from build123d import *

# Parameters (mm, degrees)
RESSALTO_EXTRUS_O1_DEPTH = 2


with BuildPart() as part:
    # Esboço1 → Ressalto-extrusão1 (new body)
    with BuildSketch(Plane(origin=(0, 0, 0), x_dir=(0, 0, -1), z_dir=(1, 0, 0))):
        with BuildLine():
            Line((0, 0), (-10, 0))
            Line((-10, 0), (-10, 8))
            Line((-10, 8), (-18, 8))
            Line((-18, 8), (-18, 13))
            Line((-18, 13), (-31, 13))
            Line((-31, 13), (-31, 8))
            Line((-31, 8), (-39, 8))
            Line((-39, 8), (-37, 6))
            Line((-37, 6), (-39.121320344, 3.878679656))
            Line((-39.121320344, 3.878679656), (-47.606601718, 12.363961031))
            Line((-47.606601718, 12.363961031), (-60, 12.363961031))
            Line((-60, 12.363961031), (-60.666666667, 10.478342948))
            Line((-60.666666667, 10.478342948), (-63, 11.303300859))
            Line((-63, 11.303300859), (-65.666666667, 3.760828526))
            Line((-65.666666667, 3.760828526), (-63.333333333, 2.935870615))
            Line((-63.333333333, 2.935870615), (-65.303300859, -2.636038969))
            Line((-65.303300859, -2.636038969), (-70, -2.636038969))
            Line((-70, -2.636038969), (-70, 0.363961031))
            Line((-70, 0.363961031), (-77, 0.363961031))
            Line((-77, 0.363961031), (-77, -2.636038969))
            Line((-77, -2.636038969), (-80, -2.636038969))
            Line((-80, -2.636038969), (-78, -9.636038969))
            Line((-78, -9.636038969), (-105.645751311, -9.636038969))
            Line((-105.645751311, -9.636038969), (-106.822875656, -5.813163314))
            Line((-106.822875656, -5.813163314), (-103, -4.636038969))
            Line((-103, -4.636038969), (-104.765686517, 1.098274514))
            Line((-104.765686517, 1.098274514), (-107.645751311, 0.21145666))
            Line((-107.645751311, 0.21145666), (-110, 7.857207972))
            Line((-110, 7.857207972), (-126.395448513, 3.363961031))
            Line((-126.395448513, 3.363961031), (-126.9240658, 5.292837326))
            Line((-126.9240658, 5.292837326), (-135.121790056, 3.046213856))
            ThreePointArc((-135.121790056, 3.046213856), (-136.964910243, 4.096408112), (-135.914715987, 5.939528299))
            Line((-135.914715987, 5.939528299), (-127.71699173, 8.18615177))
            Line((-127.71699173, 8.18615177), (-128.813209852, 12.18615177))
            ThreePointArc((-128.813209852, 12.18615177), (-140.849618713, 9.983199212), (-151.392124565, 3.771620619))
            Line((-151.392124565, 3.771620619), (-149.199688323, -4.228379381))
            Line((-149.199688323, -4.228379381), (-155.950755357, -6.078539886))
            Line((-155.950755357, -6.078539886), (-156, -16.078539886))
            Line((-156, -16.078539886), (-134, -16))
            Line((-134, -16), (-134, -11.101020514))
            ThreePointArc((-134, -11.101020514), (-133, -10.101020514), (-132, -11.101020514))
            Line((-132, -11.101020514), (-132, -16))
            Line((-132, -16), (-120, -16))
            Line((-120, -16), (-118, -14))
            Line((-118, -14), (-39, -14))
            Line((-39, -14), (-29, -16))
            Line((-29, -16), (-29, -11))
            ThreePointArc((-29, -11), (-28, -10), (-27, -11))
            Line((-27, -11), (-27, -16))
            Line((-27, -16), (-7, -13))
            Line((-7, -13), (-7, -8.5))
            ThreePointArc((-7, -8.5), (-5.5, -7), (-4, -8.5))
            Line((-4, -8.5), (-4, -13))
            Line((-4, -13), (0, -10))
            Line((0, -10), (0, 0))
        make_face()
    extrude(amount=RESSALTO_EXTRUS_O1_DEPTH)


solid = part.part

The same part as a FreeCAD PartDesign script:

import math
import FreeCAD as App
import Part
import Sketcher
from FreeCAD import Vector
Q = App.Units.Quantity

doc = App.newDocument("Part")
body = doc.addObject("PartDesign::Body", "Body")

sketch1 = doc.addObject("Sketcher::SketchObject", "Sketch")
body.addObject(sketch1)
sketch1.AttachmentSupport = (doc.YZ_Plane, [""])
sketch1.MapMode = "FlatFace"
sketch1.addGeometry(Part.LineSegment(Vector(0, 0, 0), Vector(0, 10, 0)), False)
sketch1.addGeometry(Part.LineSegment(Vector(0, 10, 0), Vector(8, 10, 0)), False)
sketch1.addGeometry(Part.LineSegment(Vector(8, 10, 0), Vector(8, 18, 0)), False)
sketch1.addGeometry(Part.LineSegment(Vector(8, 18, 0), Vector(13, 18, 0)), False)
sketch1.addGeometry(Part.LineSegment(Vector(13, 18, 0), Vector(13, 31, 0)), False)
sketch1.addGeometry(Part.LineSegment(Vector(13, 31, 0), Vector(8, 31, 0)), False)
sketch1.addGeometry(Part.LineSegment(Vector(8, 31, 0), Vector(8, 39, 0)), False)
sketch1.addGeometry(Part.LineSegment(Vector(8, 39, 0), Vector(6, 37, 0)), False)
sketch1.addGeometry(Part.LineSegment(Vector(6, 37, 0), Vector(3.9, 39.1, 0)), False)
sketch1.addGeometry(Part.LineSegment(Vector(3.9, 39.1, 0), Vector(12.4, 47.6, 0)), False)
sketch1.addGeometry(Part.LineSegment(Vector(12.4, 47.6, 0), Vector(12.4, 60, 0)), False)
sketch1.addGeometry(Part.LineSegment(Vector(12.4, 60, 0), Vector(10.5, 60.7, 0)), False)
sketch1.addGeometry(Part.LineSegment(Vector(10.5, 60.7, 0), Vector(11.3, 63, 0)), False)
sketch1.addGeometry(Part.LineSegment(Vector(11.3, 63, 0), Vector(3.8, 65.7, 0)), False)
sketch1.addGeometry(Part.LineSegment(Vector(3.8, 65.7, 0), Vector(2.9, 63.3, 0)), False)
sketch1.addGeometry(Part.LineSegment(Vector(2.9, 63.3, 0), Vector(-2.6, 65.3, 0)), False)
sketch1.addGeometry(Part.LineSegment(Vector(-2.6, 65.3, 0), Vector(-2.6, 70, 0)), False)
sketch1.addGeometry(Part.LineSegment(Vector(-2.6, 70, 0), Vector(0.4, 70, 0)), False)
sketch1.addGeometry(Part.LineSegment(Vector(0.4, 70, 0), Vector(0.4, 77, 0)), False)
sketch1.addGeometry(Part.LineSegment(Vector(0.4, 77, 0), Vector(-2.6, 77, 0)), False)
sketch1.addGeometry(Part.LineSegment(Vector(-2.6, 77, 0), Vector(-2.6, 80, 0)), False)
sketch1.addGeometry(Part.LineSegment(Vector(-2.6, 80, 0), Vector(-9.6, 78, 0)), False)
sketch1.addGeometry(Part.LineSegment(Vector(-9.6, 78, 0), Vector(-9.6, 105.6, 0)), False)
sketch1.addGeometry(Part.LineSegment(Vector(-9.6, 105.6, 0), Vector(-5.8, 106.8, 0)), False)
sketch1.addGeometry(Part.LineSegment(Vector(-5.8, 106.8, 0), Vector(-4.6, 103, 0)), False)
sketch1.addGeometry(Part.LineSegment(Vector(-4.6, 103, 0), Vector(1.1, 104.8, 0)), False)
sketch1.addGeometry(Part.LineSegment(Vector(1.1, 104.8, 0), Vector(0.2, 107.6, 0)), False)
sketch1.addGeometry(Part.LineSegment(Vector(0.2, 107.6, 0), Vector(7.9, 110, 0)), False)
sketch1.addGeometry(Part.LineSegment(Vector(7.9, 110, 0), Vector(3.4, 126.4, 0)), False)
sketch1.addGeometry(Part.LineSegment(Vector(3.4, 126.4, 0), Vector(5.3, 126.9, 0)), False)
sketch1.addGeometry(Part.LineSegment(Vector(5.3, 126.9, 0), Vector(3, 135.1, 0)), False)
sketch1.addGeometry(Part.ArcOfCircle(Part.Circle(Vector(4.5, 135.5, 0), Vector(0, 0, 1), 1.5), math.radians(15), math.radians(195)), False)
sketch1.addGeometry(Part.LineSegment(Vector(5.9, 135.9, 0), Vector(8.2, 127.7, 0)), False)
sketch1.addGeometry(Part.LineSegment(Vector(8.2, 127.7, 0), Vector(12.2, 128.8, 0)), False)
sketch1.addGeometry(Part.ArcOfCircle(Part.Circle(Vector(-22.8, 128.6, 0), Vector(0, 0, 1), 35), math.radians(0), math.radians(41)), False)
sketch1.addGeometry(Part.LineSegment(Vector(3.8, 151.4, 0), Vector(-4.2, 149.2, 0)), False)
sketch1.addGeometry(Part.LineSegment(Vector(-4.2, 149.2, 0), Vector(-6.1, 156, 0)), False)
sketch1.addGeometry(Part.LineSegment(Vector(-6.1, 156, 0), Vector(-16.1, 156, 0)), False)
sketch1.addGeometry(Part.LineSegment(Vector(-16.1, 156, 0), Vector(-16, 134, 0)), False)
sketch1.addGeometry(Part.LineSegment(Vector(-16, 134, 0), Vector(-11.1, 134, 0)), False)
sketch1.addGeometry(Part.ArcOfCircle(Part.Circle(Vector(-11.1, 133, 0), Vector(0, 0, 1), 1), math.radians(-90), math.radians(90)), False)
sketch1.addGeometry(Part.LineSegment(Vector(-11.1, 132, 0), Vector(-16, 132, 0)), False)
sketch1.addGeometry(Part.LineSegment(Vector(-16, 132, 0), Vector(-16, 120, 0)), False)
sketch1.addGeometry(Part.LineSegment(Vector(-16, 120, 0), Vector(-14, 118, 0)), False)
sketch1.addGeometry(Part.LineSegment(Vector(-14, 118, 0), Vector(-14, 39, 0)), False)
sketch1.addGeometry(Part.LineSegment(Vector(-14, 39, 0), Vector(-16, 29, 0)), False)
sketch1.addGeometry(Part.LineSegment(Vector(-16, 29, 0), Vector(-11, 29, 0)), False)
sketch1.addGeometry(Part.ArcOfCircle(Part.Circle(Vector(-11, 28, 0), Vector(0, 0, 1), 1), math.radians(-90), math.radians(90)), False)
sketch1.addGeometry(Part.LineSegment(Vector(-11, 27, 0), Vector(-16, 27, 0)), False)
sketch1.addGeometry(Part.LineSegment(Vector(-16, 27, 0), Vector(-13, 7, 0)), False)
sketch1.addGeometry(Part.LineSegment(Vector(-13, 7, 0), Vector(-8.5, 7, 0)), False)
sketch1.addGeometry(Part.ArcOfCircle(Part.Circle(Vector(-8.5, 5.5, 0), Vector(0, 0, 1), 1.5), math.radians(-90), math.radians(90)), False)
sketch1.addGeometry(Part.LineSegment(Vector(-8.5, 4, 0), Vector(-13, 4, 0)), False)
sketch1.addGeometry(Part.LineSegment(Vector(-13, 4, 0), Vector(-10, 0, 0)), False)
sketch1.addGeometry(Part.LineSegment(Vector(-10, 0, 0), Vector(0, 0, 0)), False)
sketch1.addConstraint(Sketcher.Constraint("Coincident", 0, 2, 1, 1))
sketch1.addConstraint(Sketcher.Constraint("Coincident", 1, 2, 2, 1))
sketch1.addConstraint(Sketcher.Constraint("Coincident", 2, 2, 3, 1))
sketch1.addConstraint(Sketcher.Constraint("Coincident", 3, 2, 4, 1))
sketch1.addConstraint(Sketcher.Constraint("Coincident", 4, 2, 5, 1))
sketch1.addConstraint(Sketcher.Constraint("Coincident", 5, 2, 6, 1))
sketch1.addConstraint(Sketcher.Constraint("Coincident", 6, 2, 7, 1))
sketch1.addConstraint(Sketcher.Constraint("Coincident", 7, 2, 8, 1))
sketch1.addConstraint(Sketcher.Constraint("Coincident", 8, 2, 9, 1))
sketch1.addConstraint(Sketcher.Constraint("Coincident", 9, 2, 10, 1))
sketch1.addConstraint(Sketcher.Constraint("Coincident", 10, 2, 11, 1))
sketch1.addConstraint(Sketcher.Constraint("Coincident", 11, 2, 12, 1))
sketch1.addConstraint(Sketcher.Constraint("Coincident", 12, 2, 13, 1))
sketch1.addConstraint(Sketcher.Constraint("Coincident", 13, 2, 14, 1))
sketch1.addConstraint(Sketcher.Constraint("Coincident", 14, 2, 15, 1))
sketch1.addConstraint(Sketcher.Constraint("Coincident", 15, 2, 16, 1))
sketch1.addConstraint(Sketcher.Constraint("Coincident", 16, 2, 17, 1))
sketch1.addConstraint(Sketcher.Constraint("Coincident", 17, 2, 18, 1))
sketch1.addConstraint(Sketcher.Constraint("Coincident", 18, 2, 19, 1))
sketch1.addConstraint(Sketcher.Constraint("Coincident", 19, 2, 20, 1))
sketch1.addConstraint(Sketcher.Constraint("Coincident", 20, 2, 21, 1))
sketch1.addConstraint(Sketcher.Constraint("Coincident", 21, 2, 22, 1))
sketch1.addConstraint(Sketcher.Constraint("Coincident", 22, 2, 23, 1))
sketch1.addConstraint(Sketcher.Constraint("Coincident", 23, 2, 24, 1))
sketch1.addConstraint(Sketcher.Constraint("Coincident", 24, 2, 25, 1))
sketch1.addConstraint(Sketcher.Constraint("Coincident", 25, 2, 26, 1))
sketch1.addConstraint(Sketcher.Constraint("Coincident", 26, 2, 27, 1))
sketch1.addConstraint(Sketcher.Constraint("Coincident", 27, 2, 28, 1))
sketch1.addConstraint(Sketcher.Constraint("Coincident", 28, 2, 29, 1))
sketch1.addConstraint(Sketcher.Constraint("Coincident", 29, 2, 30, 1))
sketch1.addConstraint(Sketcher.Constraint("Tangent", 30, 2, 31, 2))
sketch1.addConstraint(Sketcher.Constraint("Tangent", 31, 1, 32, 1))
sketch1.addConstraint(Sketcher.Constraint("Coincident", 32, 2, 33, 1))
sketch1.addConstraint(Sketcher.Constraint("Coincident", 33, 2, 34, 1))
sketch1.addConstraint(Sketcher.Constraint("Coincident", 34, 2, 35, 1))
sketch1.addConstraint(Sketcher.Constraint("Coincident", 35, 2, 36, 1))
sketch1.addConstraint(Sketcher.Constraint("Coincident", 36, 2, 37, 1))
sketch1.addConstraint(Sketcher.Constraint("Coincident", 37, 2, 38, 1))
sketch1.addConstraint(Sketcher.Constraint("Coincident", 38, 2, 39, 1))
sketch1.addConstraint(Sketcher.Constraint("Tangent", 39, 2, 40, 2))
sketch1.addConstraint(Sketcher.Constraint("Tangent", 40, 1, 41, 1))
sketch1.addConstraint(Sketcher.Constraint("Coincident", 41, 2, 42, 1))
sketch1.addConstraint(Sketcher.Constraint("Coincident", 42, 2, 43, 1))
sketch1.addConstraint(Sketcher.Constraint("Coincident", 43, 2, 44, 1))
sketch1.addConstraint(Sketcher.Constraint("Coincident", 44, 2, 45, 1))
sketch1.addConstraint(Sketcher.Constraint("Coincident", 45, 2, 46, 1))
sketch1.addConstraint(Sketcher.Constraint("Tangent", 46, 2, 47, 2))
sketch1.addConstraint(Sketcher.Constraint("Tangent", 47, 1, 48, 1))
sketch1.addConstraint(Sketcher.Constraint("Coincident", 48, 2, 49, 1))
sketch1.addConstraint(Sketcher.Constraint("Coincident", 49, 2, 50, 1))
sketch1.addConstraint(Sketcher.Constraint("Tangent", 50, 2, 51, 2))
sketch1.addConstraint(Sketcher.Constraint("Tangent", 51, 1, 52, 1))
sketch1.addConstraint(Sketcher.Constraint("Coincident", 52, 2, 53, 1))
sketch1.addConstraint(Sketcher.Constraint("Coincident", 53, 2, 54, 1))
sketch1.addConstraint(Sketcher.Constraint("Coincident", 54, 2, 0, 1))
sketch1.addConstraint(Sketcher.Constraint("Vertical", 0))
sketch1.addConstraint(Sketcher.Constraint("Horizontal", 1))
sketch1.addConstraint(Sketcher.Constraint("Vertical", 2))
sketch1.addConstraint(Sketcher.Constraint("Horizontal", 3))
sketch1.addConstraint(Sketcher.Constraint("Vertical", 4))
sketch1.addConstraint(Sketcher.Constraint("Horizontal", 5))
sketch1.addConstraint(Sketcher.Constraint("Vertical", 6))
sketch1.addConstraint(Sketcher.Constraint("Vertical", 10))
sketch1.addConstraint(Sketcher.Constraint("Vertical", 16))
sketch1.addConstraint(Sketcher.Constraint("Horizontal", 17))
sketch1.addConstraint(Sketcher.Constraint("Vertical", 18))
sketch1.addConstraint(Sketcher.Constraint("Horizontal", 19))
sketch1.addConstraint(Sketcher.Constraint("Vertical", 20))
sketch1.addConstraint(Sketcher.Constraint("Vertical", 22))
sketch1.addConstraint(Sketcher.Constraint("Horizontal", 39))
sketch1.addConstraint(Sketcher.Constraint("Horizontal", 41))
sketch1.addConstraint(Sketcher.Constraint("Vertical", 42))
sketch1.addConstraint(Sketcher.Constraint("Vertical", 44))
sketch1.addConstraint(Sketcher.Constraint("Horizontal", 46))
sketch1.addConstraint(Sketcher.Constraint("Horizontal", 48))
sketch1.addConstraint(Sketcher.Constraint("Horizontal", 50))
sketch1.addConstraint(Sketcher.Constraint("Horizontal", 52))
sketch1.addConstraint(Sketcher.Constraint("Horizontal", 54))
sketch1.addConstraint(Sketcher.Constraint("Coincident", 54, 2, -1, 1))
sketch1.addConstraint(Sketcher.Constraint("Equal", 40, 47))
sketch1.addConstraint(Sketcher.Constraint("Equal", 31, 51))
sketch1.addConstraint(Sketcher.Constraint("Perpendicular", 7, 8))
sketch1.addConstraint(Sketcher.Constraint("Perpendicular", 8, 9))
sketch1.addConstraint(Sketcher.Constraint("Perpendicular", 11, 12))
sketch1.addConstraint(Sketcher.Constraint("Perpendicular", 12, 13))
sketch1.addConstraint(Sketcher.Constraint("Perpendicular", 13, 14))
sketch1.addConstraint(Sketcher.Constraint("Perpendicular", 14, 15))
sketch1.addConstraint(Sketcher.Constraint("Perpendicular", 23, 24))
sketch1.addConstraint(Sketcher.Constraint("Perpendicular", 24, 25))
sketch1.addConstraint(Sketcher.Constraint("Perpendicular", 25, 26))
sketch1.addConstraint(Sketcher.Constraint("Perpendicular", 26, 27))
sketch1.addConstraint(Sketcher.Constraint("Perpendicular", 28, 29))
sketch1.addConstraint(Sketcher.Constraint("Perpendicular", 29, 30))
sketch1.addConstraint(Sketcher.Constraint("Parallel", 30, 32))
sketch1.addConstraint(Sketcher.Constraint("Perpendicular", 32, 33))
sketch1.addConstraint(Sketcher.Constraint("Parallel", 33, 35))
sketch1.addConstraint(Sketcher.Constraint("Perpendicular", 35, 36))
sketch1.addConstraint(Sketcher.Constraint("Perpendicular", 9, 43))
sketch1.addConstraint(Sketcher.Constraint("Horizontal", 6, 2, 44, 2))
sketch1.addConstraint(Sketcher.Constraint("Vertical", 2, 2, 5, 2))
sketch1.addConstraint(Sketcher.Constraint("Vertical", 16, 2, 19, 2))
sketch1.addConstraint(Sketcher.Constraint("Vertical", 38, 2, 41, 2))
sketch1.addConstraint(Sketcher.Constraint("Vertical", 42, 2, 45, 2))
sketch1.addConstraint(Sketcher.Constraint("Vertical", 45, 2, 48, 2))
sketch1.addConstraint(Sketcher.Constraint("Vertical", 49, 2, 52, 2))
sketch1.addConstraint(Sketcher.Constraint("Equal", 5, 46))
sketch1.addConstraint(Sketcher.Constraint("Equal", 54, 0))
sketch1.addConstraint(Sketcher.Constraint("Equal", 1, 2))
sketch1.addConstraint(Sketcher.Constraint("Equal", 2, 6))
sketch1.addConstraint(Sketcher.Constraint("Equal", 19, 20))
sketch1.addConstraint(Sketcher.Constraint("Equal", 12, 14))
sketch1.addConstraint(Sketcher.Constraint("Equal", 23, 24))
sketch1.addConstraint(Sketcher.Constraint("Equal", 13, 27))
sketch1.addConstraint(Sketcher.Constraint("Equal", 11, 29))
sketch1.addConstraint(Sketcher.Constraint("Equal", 30, 32))
sketch1.addConstraint(Sketcher.Constraint("Equal", 7, 43))
sketch1.addConstraint(Sketcher.Constraint("Radius", 34, 35.0))
sketch1.addConstraint(Sketcher.Constraint("Radius", 40, 1.0))
sketch1.addConstraint(Sketcher.Constraint("Radius", 31, 1.5))
sketch1.addConstraint(Sketcher.Constraint("DistanceX", 1, 1, 1, 2, 8.0))
sketch1.addConstraint(Sketcher.Constraint("DistanceX", 3, 1, 3, 2, 5.0))
sketch1.addConstraint(Sketcher.Constraint("DistanceX", 17, 1, 17, 2, 3.0))
sketch1.addConstraint(Sketcher.Constraint("DistanceX", 54, 1, 54, 2, 10.0))
sketch1.addConstraint(Sketcher.Constraint("DistanceY", 4, 1, 4, 2, 13.0))
sketch1.addConstraint(Sketcher.Constraint("DistanceY", 18, 1, 18, 2, 7.0))
sketch1.addConstraint(Sketcher.Constraint("DistanceY", 42, 2, 42, 1, 12.0))
sketch1.addConstraint(Sketcher.Constraint("DistanceY", 44, 2, 44, 1, 79.0))
sketch1.addConstraint(Sketcher.Constraint("Angle", 7, Q("-135 deg")))
sketch1.addConstraint(Sketcher.Constraint("Distance", 8, 3.0))
sketch1.addConstraint(Sketcher.Constraint("Distance", 9, 12.0))
sketch1.addConstraint(Sketcher.Constraint("Distance", 11, 2.0))
sketch1.addConstraint(Sketcher.Constraint("Distance", 13, 8.0))
sketch1.addConstraint(Sketcher.Constraint("Distance", 23, 4.0))
sketch1.addConstraint(Sketcher.Constraint("Distance", 25, 6.0))
sketch1.addConstraint(Sketcher.Constraint("Distance", 28, 17.0))
sketch1.addConstraint(Sketcher.Constraint("Distance", 36, 7.0))
sketch1.addConstraint(Sketcher.Constraint("Distance", 53, 5.0))
sketch1.addConstraint(Sketcher.Constraint("DistanceX", 50, 1, 50, 2, 4.5))
sketch1.addConstraint(Sketcher.Constraint("DistanceY", -1, 1, 40, 3, 133.0))
sketch1.addConstraint(Sketcher.Constraint("DistanceX", 47, 3, -1, 1, 11.0))
sketch1.addConstraint(Sketcher.Constraint("DistanceY", -1, 1, 47, 3, 28.0))
sketch1.addConstraint(Sketcher.Constraint("DistanceY", -1, 1, 10, 2, 60.0))
sketch1.addConstraint(Sketcher.Constraint("DistanceY", -1, 1, 12, 2, 63.0))
sketch1.addConstraint(Sketcher.Constraint("DistanceY", -1, 1, 16, 2, 70.0))
sketch1.addConstraint(Sketcher.Constraint("DistanceY", -1, 1, 21, 2, 78.0))
sketch1.addConstraint(Sketcher.Constraint("DistanceY", -1, 1, 24, 2, 103.0))
sketch1.addConstraint(Sketcher.Constraint("DistanceY", -1, 1, 27, 2, 110.0))
sketch1.addConstraint(Sketcher.Constraint("DistanceY", -1, 1, 37, 2, 156.0))
sketch1.addConstraint(Sketcher.Constraint("DistanceX", 49, 2, -1, 1, 13.0))
sketch1.addConstraint(Sketcher.Constraint("DistanceY", 11, 2, 13, 2, 5.0))
sketch1.addConstraint(Sketcher.Constraint("DistanceX", 15, 2, 10, 2, 15.0))
sketch1.addConstraint(Sketcher.Constraint("DistanceX", 21, 2, 19, 2, 7.0))
sketch1.addConstraint(Sketcher.Constraint("DistanceX", 22, 2, 24, 2, 5.0))
sketch1.addConstraint(Sketcher.Constraint("DistanceX", 32, 2, 33, 2, 4.0))
sketch1.addConstraint(Sketcher.Constraint("DistanceX", 35, 2, 34, 2, 8.0))
sketch1.addConstraint(Sketcher.Constraint("DistanceX", 37, 2, 36, 2, 10.0))
sketch1.addConstraint(Sketcher.Constraint("Distance", 30, 8.5))
sketch1.addConstraint(Sketcher.Constraint("DistanceX", 39, 1, 39, 2, 4.898979))
sketch1.addConstraint(Sketcher.Constraint("DistanceY", 32, 2, 30, 2, 7.404798))
sketch1.addConstraint(Sketcher.Constraint("DistanceY", 30, 2, 35, 2, 14.077898))
sketch1.addConstraint(Sketcher.Constraint("DistanceY", -1, 1, 34, 3, 128.627259))
pad1 = doc.addObject("PartDesign::Pad", "Pad")
body.addObject(pad1)
pad1.Profile = sketch1
pad1.Length = 2

doc.recompute()
